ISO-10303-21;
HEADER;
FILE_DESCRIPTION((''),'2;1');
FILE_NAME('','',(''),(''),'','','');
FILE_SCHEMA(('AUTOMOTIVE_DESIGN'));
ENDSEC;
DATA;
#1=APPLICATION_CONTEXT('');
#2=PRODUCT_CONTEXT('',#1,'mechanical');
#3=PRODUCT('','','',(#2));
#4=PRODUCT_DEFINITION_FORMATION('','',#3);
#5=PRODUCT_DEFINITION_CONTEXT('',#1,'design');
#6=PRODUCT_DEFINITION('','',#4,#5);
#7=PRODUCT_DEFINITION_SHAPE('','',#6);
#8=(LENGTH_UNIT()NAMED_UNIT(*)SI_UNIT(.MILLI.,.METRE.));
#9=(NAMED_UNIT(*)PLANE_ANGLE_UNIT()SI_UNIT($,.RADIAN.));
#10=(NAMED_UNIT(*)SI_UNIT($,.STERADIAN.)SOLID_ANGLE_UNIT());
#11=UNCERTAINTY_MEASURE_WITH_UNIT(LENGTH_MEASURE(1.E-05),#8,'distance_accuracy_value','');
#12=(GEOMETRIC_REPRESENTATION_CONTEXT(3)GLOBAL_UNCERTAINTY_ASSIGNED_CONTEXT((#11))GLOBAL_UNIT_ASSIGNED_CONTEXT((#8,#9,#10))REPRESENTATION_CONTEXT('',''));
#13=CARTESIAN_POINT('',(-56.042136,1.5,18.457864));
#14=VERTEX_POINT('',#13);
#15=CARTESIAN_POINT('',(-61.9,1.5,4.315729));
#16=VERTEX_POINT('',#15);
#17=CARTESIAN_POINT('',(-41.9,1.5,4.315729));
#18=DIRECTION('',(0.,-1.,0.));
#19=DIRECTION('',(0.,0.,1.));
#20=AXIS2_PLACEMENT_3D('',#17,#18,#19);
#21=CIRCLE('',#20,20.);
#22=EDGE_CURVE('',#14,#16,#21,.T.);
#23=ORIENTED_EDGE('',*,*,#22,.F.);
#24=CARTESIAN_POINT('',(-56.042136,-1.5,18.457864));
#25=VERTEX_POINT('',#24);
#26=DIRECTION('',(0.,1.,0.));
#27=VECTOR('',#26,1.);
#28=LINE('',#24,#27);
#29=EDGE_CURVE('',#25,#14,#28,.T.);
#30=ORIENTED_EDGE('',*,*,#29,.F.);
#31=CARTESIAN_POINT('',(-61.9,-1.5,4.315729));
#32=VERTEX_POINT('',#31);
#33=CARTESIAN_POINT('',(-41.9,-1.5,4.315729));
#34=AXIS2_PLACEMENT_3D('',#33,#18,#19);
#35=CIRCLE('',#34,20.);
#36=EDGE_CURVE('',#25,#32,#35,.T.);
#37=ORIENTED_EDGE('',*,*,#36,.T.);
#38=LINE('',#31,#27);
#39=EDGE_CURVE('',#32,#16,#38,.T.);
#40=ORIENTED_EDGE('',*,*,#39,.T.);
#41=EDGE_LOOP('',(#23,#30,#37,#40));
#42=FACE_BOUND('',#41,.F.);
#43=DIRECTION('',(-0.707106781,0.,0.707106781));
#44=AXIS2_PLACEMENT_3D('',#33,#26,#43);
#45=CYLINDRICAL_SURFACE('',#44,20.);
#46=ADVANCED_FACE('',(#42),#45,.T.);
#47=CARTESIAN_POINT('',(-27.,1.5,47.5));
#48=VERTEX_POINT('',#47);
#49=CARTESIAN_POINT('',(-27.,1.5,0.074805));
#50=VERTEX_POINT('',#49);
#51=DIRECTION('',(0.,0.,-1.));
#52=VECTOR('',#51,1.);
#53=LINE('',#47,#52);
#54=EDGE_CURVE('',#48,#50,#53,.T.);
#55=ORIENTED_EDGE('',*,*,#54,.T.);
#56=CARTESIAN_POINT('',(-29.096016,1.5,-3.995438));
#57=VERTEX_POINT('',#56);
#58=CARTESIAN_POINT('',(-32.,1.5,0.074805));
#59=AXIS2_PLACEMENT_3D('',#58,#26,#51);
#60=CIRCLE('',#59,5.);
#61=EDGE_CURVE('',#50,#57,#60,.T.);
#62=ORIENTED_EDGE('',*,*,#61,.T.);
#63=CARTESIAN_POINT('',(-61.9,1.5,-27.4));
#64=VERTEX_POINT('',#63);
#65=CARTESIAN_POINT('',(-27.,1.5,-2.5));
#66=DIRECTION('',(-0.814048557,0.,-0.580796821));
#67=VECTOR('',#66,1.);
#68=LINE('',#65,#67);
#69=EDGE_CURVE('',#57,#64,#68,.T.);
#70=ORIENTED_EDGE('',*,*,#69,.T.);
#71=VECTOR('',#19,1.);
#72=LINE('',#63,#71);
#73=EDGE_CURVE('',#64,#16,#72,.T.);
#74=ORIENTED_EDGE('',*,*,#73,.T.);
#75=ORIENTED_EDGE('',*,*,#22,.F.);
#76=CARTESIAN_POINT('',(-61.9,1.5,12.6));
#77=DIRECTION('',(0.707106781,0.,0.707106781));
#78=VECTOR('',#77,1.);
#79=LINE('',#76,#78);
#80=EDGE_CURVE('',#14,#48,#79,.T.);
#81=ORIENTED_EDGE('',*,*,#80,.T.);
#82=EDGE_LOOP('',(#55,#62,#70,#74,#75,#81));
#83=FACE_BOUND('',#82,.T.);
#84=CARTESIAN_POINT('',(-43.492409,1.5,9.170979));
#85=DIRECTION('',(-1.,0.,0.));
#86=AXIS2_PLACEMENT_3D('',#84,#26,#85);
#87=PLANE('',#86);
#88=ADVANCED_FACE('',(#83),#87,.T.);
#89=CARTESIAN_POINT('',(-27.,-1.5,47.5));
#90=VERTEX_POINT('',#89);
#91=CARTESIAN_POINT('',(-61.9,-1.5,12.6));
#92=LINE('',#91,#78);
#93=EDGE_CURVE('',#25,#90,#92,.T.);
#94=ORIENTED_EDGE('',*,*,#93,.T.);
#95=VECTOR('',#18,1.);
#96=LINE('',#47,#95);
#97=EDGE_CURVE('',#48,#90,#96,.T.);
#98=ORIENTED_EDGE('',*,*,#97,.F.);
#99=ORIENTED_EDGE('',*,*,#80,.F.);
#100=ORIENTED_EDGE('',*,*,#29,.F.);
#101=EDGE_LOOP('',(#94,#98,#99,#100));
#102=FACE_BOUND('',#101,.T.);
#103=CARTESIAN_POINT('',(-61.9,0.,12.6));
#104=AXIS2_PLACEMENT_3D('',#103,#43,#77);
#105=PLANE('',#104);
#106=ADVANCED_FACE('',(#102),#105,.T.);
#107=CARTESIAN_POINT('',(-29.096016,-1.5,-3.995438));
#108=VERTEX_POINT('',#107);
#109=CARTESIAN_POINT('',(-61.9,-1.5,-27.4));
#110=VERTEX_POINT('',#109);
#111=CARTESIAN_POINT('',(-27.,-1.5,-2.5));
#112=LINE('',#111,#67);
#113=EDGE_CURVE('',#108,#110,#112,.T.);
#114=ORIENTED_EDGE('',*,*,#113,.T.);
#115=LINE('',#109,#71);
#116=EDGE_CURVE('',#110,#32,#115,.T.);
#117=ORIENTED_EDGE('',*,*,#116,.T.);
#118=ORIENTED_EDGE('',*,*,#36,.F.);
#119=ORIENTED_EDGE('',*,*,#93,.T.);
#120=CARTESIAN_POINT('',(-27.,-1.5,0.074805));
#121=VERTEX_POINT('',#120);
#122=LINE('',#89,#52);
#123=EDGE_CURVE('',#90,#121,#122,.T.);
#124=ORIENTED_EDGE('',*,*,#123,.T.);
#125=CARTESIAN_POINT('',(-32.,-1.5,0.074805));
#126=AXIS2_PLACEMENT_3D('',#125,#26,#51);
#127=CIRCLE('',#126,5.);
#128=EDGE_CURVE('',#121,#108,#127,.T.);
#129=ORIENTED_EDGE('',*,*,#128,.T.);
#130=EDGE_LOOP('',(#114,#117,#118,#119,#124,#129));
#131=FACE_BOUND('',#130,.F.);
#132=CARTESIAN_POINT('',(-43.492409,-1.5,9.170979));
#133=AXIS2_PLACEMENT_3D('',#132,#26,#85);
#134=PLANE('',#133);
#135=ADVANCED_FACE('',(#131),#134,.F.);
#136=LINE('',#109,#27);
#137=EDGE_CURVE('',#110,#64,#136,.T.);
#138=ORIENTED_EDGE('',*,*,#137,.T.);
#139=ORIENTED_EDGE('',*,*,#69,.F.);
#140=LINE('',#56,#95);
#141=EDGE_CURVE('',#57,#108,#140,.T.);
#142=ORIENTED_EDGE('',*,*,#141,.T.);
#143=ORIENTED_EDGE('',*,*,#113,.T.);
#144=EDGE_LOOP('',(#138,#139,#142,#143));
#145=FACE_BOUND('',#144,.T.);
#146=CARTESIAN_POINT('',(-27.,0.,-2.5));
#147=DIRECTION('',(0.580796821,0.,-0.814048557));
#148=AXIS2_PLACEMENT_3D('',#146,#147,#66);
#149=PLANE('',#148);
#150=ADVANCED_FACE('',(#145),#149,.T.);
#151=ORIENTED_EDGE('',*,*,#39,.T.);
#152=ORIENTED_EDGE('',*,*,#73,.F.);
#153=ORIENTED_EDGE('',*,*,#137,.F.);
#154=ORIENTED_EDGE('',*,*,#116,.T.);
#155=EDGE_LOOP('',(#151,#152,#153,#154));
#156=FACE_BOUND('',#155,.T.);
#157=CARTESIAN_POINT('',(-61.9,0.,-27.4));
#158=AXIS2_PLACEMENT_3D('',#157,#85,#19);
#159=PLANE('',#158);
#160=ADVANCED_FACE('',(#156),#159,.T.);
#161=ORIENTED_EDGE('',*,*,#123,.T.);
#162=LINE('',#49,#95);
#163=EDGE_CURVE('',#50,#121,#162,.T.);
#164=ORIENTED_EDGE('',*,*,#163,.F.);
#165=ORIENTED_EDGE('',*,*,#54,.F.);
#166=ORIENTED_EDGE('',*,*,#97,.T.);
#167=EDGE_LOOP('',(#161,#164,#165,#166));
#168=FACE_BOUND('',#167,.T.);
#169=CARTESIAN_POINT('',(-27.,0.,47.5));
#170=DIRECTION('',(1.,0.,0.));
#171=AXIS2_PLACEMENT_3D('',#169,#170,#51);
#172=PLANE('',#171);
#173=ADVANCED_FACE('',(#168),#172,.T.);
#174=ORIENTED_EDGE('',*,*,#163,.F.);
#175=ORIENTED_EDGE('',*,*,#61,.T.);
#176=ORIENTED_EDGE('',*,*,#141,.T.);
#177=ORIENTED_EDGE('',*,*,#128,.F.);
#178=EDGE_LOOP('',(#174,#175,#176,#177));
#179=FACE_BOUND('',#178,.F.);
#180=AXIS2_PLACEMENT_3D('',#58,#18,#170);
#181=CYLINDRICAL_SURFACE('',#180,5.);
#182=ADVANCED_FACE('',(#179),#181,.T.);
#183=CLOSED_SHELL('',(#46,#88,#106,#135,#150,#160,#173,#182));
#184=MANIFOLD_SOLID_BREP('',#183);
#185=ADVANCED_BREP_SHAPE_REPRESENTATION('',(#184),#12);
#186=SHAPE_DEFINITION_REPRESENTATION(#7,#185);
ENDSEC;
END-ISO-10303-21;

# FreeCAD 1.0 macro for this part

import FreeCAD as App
import Part
import Sketcher
from FreeCAD import Vector
Q = App.Units.Quantity


def edges_at(feature, points):
    """Names of the edges that pass closest to the given points."""
    edges = feature.Shape.Edges
    near = lambda p: min(range(len(edges)), key=lambda i: edges[i].distToShape(Part.Vertex(*p))[0])
    return sorted({f"Edge{near(p) + 1}" for p in points})


def add_polygon(sketch, points):
    """Adds a closed chain of lines whose ends are joined by coincident constraints."""
    first, n = sketch.GeometryCount, len(points)
    for a, b in zip(points, points[1:] + points[:1]):
        sketch.addGeometry(Part.LineSegment(App.Vector(*a, 0), App.Vector(*b, 0)), False)
    for i in range(n):
        sketch.addConstraint(Sketcher.Constraint("Coincident", first + i, 2, first + (i + 1) % n, 1))

doc = App.newDocument("Part")
body = doc.addObject("PartDesign::Body", "Body")

# Sketch on YZ plane
sketch1 = body.newObject("Sketcher::SketchObject", "Sketch")
sketch1.AttachmentSupport = (doc.getObject("YZ_Plane"), [""])
sketch1.MapMode = "FlatFace"
add_polygon(sketch1, [(27, -2), (62, -27), (62, 13), (27, 48)])  # lines 0-3
sketch1.addConstraint([
    Sketcher.Constraint("Vertical", 1),
    Sketcher.Constraint("Vertical", 3),
    Sketcher.Constraint("DistanceY", 1, 1, 1, 2, 40.0),
    Sketcher.Constraint("DistanceY", 3, 2, 3, 1, 50.0),
    Sketcher.Constraint("Angle", 2, Q("135 deg")),
    Sketcher.Constraint("DistanceX", -1, 1, 2, 2, 27.0),
    Sketcher.Constraint("DistanceX", -1, 1, 0, 2, 61.9),
    Sketcher.Constraint("DistanceY", 0, 2, -1, 1, 27.4),
])
pad1 = body.newObject("PartDesign::Pad", "Pad")
pad1.Profile = sketch1
pad1.Length = 3
pad1.Midplane = True
doc.recompute()

fillet = body.newObject("PartDesign::Fillet", "Fillet")
fillet.Base = (pad1, edges_at(pad1, [(0, 61.9, 12.6)]))
fillet.Radius = 20
doc.recompute()

fillet2 = body.newObject("PartDesign::Fillet", "Fillet001")
fillet2.Base = (fillet, edges_at(fillet, [(0, 27, -2.5)]))
fillet2.Radius = 5
body2 = doc.addObject("PartDesign::Body", "Body001")
doc.recompute()

body.Placement = App.Placement(Vector(0, 0, 0), App.Rotation(Vector(0, 0, 1), 90))
boolean = body2.newObject("PartDesign::Boolean", "Boolean")
boolean.Type = "Fuse"
boolean.addObjects([body])

doc.recompute()
